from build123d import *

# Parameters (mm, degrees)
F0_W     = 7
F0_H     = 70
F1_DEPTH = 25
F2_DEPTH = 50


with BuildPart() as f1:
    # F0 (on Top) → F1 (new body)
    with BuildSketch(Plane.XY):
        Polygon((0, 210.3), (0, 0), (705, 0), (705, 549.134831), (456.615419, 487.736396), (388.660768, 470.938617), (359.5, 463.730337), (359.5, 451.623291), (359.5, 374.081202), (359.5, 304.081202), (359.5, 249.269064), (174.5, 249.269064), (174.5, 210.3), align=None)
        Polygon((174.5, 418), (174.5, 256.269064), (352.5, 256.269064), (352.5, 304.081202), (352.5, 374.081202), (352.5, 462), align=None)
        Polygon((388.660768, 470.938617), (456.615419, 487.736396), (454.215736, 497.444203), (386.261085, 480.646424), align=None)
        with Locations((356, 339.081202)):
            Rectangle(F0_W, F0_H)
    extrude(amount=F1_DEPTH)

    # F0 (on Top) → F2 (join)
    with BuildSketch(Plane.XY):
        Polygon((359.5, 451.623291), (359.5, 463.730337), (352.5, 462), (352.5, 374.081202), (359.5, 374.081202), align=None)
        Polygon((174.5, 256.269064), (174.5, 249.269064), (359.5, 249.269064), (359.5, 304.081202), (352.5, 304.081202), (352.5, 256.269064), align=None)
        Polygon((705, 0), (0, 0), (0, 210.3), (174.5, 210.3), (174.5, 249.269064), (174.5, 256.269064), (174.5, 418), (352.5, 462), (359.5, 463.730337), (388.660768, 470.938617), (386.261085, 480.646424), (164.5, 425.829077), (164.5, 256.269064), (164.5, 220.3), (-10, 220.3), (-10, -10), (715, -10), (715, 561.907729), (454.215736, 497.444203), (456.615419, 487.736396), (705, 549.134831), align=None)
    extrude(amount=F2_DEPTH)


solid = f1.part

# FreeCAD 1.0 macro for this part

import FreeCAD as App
import Part
import Sketcher
from FreeCAD import Vector
Q = App.Units.Quantity


def add_polygon(sketch, points):
    """Adds a closed chain of lines whose ends are joined by coincident constraints."""
    first, n = sketch.GeometryCount, len(points)
    for a, b in zip(points, points[1:] + points[:1]):
        sketch.addGeometry(Part.LineSegment(App.Vector(*a, 0), App.Vector(*b, 0)), False)
    for i in range(n):
        sketch.addConstraint(Sketcher.Constraint("Coincident", first + i, 2, first + (i + 1) % n, 1))

doc = App.newDocument("Part")
params = doc.addObject("Spreadsheet::Sheet", "Params")
for row, (alias, value) in enumerate([
    ("sketch1_width", "705 mm"),
    ("sketch1_width2", "7 mm"),
    ("sketch1_width3", "178 mm"),
    ("sketch1_length", "10 mm"),
    ("sketch1_length2", "70 mm"),
    ("pad1_length", "25 mm"),
    ("sketch2_width", "7 mm"),
    ("sketch2_width2", "725 mm"),
    ("sketch2_width3", "705 mm"),
    ("sketch2_width4", "185 mm"),
    ("sketch2_length", "10 mm"),
    ("pad2_length", "50 mm"),
], start=1):
    params.set(f"A{row}", alias)
    params.set(f"B{row}", "=" + value)
    params.setAlias(f"B{row}", alias)

body = doc.addObject("PartDesign::Body", "Body")

sketch1 = body.newObject("Sketcher::SketchObject", "Sketch")
sketch1.AttachmentSupport = (doc.getObject("XY_Plane"), [""])
sketch1.MapMode = "FlatFace"
add_polygon(sketch1, [(0, 210), (0, 0), (705, 0), (705, 549), (457, 488), (454, 497), (386, 481), (389, 471), (360, 464), (360, 374), (352, 374), (352, 462), (174, 418), (174, 256), (352, 256), (352, 304), (360, 304), (360, 249), (174, 249), (174, 210)])
sketch1.addConstraint(Sketcher.Constraint("Vertical", 0))
sketch1.addConstraint(Sketcher.Constraint("Horizontal", 1))
sketch1.addConstraint(Sketcher.Constraint("Vertical", 2))
sketch1.addConstraint(Sketcher.Constraint("Vertical", 8))
sketch1.addConstraint(Sketcher.Constraint("Horizontal", 9))
sketch1.addConstraint(Sketcher.Constraint("Vertical", 10))
sketch1.addConstraint(Sketcher.Constraint("Vertical", 12))
sketch1.addConstraint(Sketcher.Constraint("Horizontal", 13))
sketch1.addConstraint(Sketcher.Constraint("Vertical", 14))
sketch1.addConstraint(Sketcher.Constraint("Horizontal", 15))
sketch1.addConstraint(Sketcher.Constraint("Vertical", 16))
sketch1.addConstraint(Sketcher.Constraint("Horizontal", 17))
sketch1.addConstraint(Sketcher.Constraint("Vertical", 18))
sketch1.addConstraint(Sketcher.Constraint("Horizontal", 19))
sketch1.addConstraint(Sketcher.Constraint("Coincident", 0, 2, -1, 1))
sketch1.addConstraint(Sketcher.Constraint("Perpendicular", 3, 4))
sketch1.addConstraint(Sketcher.Constraint("Perpendicular", 4, 5))
sketch1.addConstraint(Sketcher.Constraint("Perpendicular", 5, 6))
sketch1.addConstraint(Sketcher.Constraint("Perpendicular", 6, 7))
sketch1.addConstraint(Sketcher.Constraint("Parallel", 7, 11))
sketch1.addConstraint(Sketcher.Constraint("Vertical", 10, 2, 13, 2))
sketch1.addConstraint(Sketcher.Constraint("Vertical", 8, 2, 15, 2))
sketch1.addConstraint(Sketcher.Constraint("Vertical", 12, 2, 17, 2))
sketch1.addConstraint(Sketcher.Constraint("Equal", 4, 6))
sketch1.addConstraint(Sketcher.Constraint("DistanceX", 1, 1, 1, 2, Q("705 mm")))
sketch1.addConstraint(Sketcher.Constraint("DistanceX", 9, 2, 9, 1, Q("7 mm")))
sketch1.addConstraint(Sketcher.Constraint("DistanceX", 13, 1, 13, 2, Q("178 mm")))
sketch1.addConstraint(Sketcher.Constraint("Distance", 4, Q("10 mm")))
sketch1.addConstraint(Sketcher.Constraint("Distance", 5, Q("70 mm")))
sketch1.addConstraint(Sketcher.Constraint("DistanceX", 19, 2, 19, 1, Q("174.5 mm")))
sketch1.addConstraint(Sketcher.Constraint("DistanceY", 0, 2, 0, 1, Q("210.3 mm")))
sketch1.addConstraint(Sketcher.Constraint("DistanceY", -1, 1, 10, 2, Q("462 mm")))
sketch1.addConstraint(Sketcher.Constraint("DistanceY", -1, 1, 11, 2, Q("418 mm")))
sketch1.addConstraint(Sketcher.Constraint("DistanceY", 14, 2, 9, 2, Q("70 mm")))
sketch1.addConstraint(Sketcher.Constraint("DistanceY", 16, 2, 13, 2, Q("7 mm")))
sketch1.addConstraint(Sketcher.Constraint("DistanceY", 8, 2, 4, 2, Q("123.363001 mm")))
sketch1.addConstraint(Sketcher.Constraint("DistanceY", 2, 1, 2, 2, Q("549.134831 mm")))
sketch1.addConstraint(Sketcher.Constraint("DistanceY", 14, 1, 14, 2, Q("47.812138 mm")))
sketch1.addConstraint(Sketcher.Constraint("DistanceY", -1, 1, 8, 2, Q("374.081202 mm")))
sketch1.setExpression("Constraints[44]", "Params.sketch1_width")
sketch1.setExpression("Constraints[45]", "Params.sketch1_width2")
sketch1.setExpression("Constraints[46]", "Params.sketch1_width3")
sketch1.setExpression("Constraints[47]", "Params.sketch1_length")
sketch1.setExpression("Constraints[48]", "Params.sketch1_length2")
pad1 = body.newObject("PartDesign::Pad", "Pad")
pad1.Profile = sketch1
pad1.setExpression("Length", "Params.pad1_length")

sketch2 = body.newObject("Sketcher::SketchObject", "Sketch001")
sketch2.AttachmentSupport = (doc.getObject("XY_Plane"), [""])
sketch2.MapMode = "FlatFace"
add_polygon(sketch2, [(352, 462), (352, 374), (360, 374), (360, 464), (389, 471), (386, 481), (164, 426), (164, 220), (-10, 220), (-10, -10), (715, -10), (715, 562), (454, 497), (457, 488), (705, 549), (705, 0), (0, 0), (0, 210), (174, 210), (174, 249), (360, 249), (360, 304), (352, 304), (352, 256), (174, 256), (174, 418)])
sketch2.addConstraint(Sketcher.Constraint("Vertical", 0))
sketch2.addConstraint(Sketcher.Constraint("Horizontal", 1))
sketch2.addConstraint(Sketcher.Constraint("Vertical", 2))
sketch2.addConstraint(Sketcher.Constraint("Vertical", 6))
sketch2.addConstraint(Sketcher.Constraint("Horizontal", 7))
sketch2.addConstraint(Sketcher.Constraint("Vertical", 8))
sketch2.addConstraint(Sketcher.Constraint("Horizontal", 9))
sketch2.addConstraint(Sketcher.Constraint("Vertical", 10))
sketch2.addConstraint(Sketcher.Constraint("Vertical", 14))
sketch2.addConstraint(Sketcher.Constraint("Horizontal", 15))
sketch2.addConstraint(Sketcher.Constraint("Vertical", 16))
sketch2.addConstraint(Sketcher.Constraint("Horizontal", 17))
sketch2.addConstraint(Sketcher.Constraint("Vertical", 18))
sketch2.addConstraint(Sketcher.Constraint("Horizontal", 19))
sketch2.addConstraint(Sketcher.Constraint("Vertical", 20))
sketch2.addConstraint(Sketcher.Constraint("Horizontal", 21))
sketch2.addConstraint(Sketcher.Constraint("Vertical", 22))
sketch2.addConstraint(Sketcher.Constraint("Horizontal", 23))
sketch2.addConstraint(Sketcher.Constraint("Vertical", 24))
sketch2.addConstraint(Sketcher.Constraint("Coincident", 15, 2, -1, 1))
sketch2.addConstraint(Sketcher.Constraint("Perpendicular", 3, 4))
sketch2.addConstraint(Sketcher.Constraint("Perpendicular", 4, 5))
sketch2.addConstraint(Sketcher.Constraint("Parallel", 5, 11))
sketch2.addConstraint(Sketcher.Constraint("Perpendicular", 11, 12))
sketch2.addConstraint(Sketcher.Constraint("Perpendicular", 12, 13))
sketch2.addConstraint(Sketcher.Constraint("Parallel", 13, 25))
sketch2.addConstraint(Sketcher.Constraint("Vertical", 2, 2, 19, 2))
sketch2.addConstraint(Sketcher.Constraint("Vertical", 0, 2, 21, 2))
sketch2.addConstraint(Sketcher.Constraint("Vertical", 18, 2, 23, 2))
sketch2.addConstraint(Sketcher.Constraint("Equal", 7, 17))
sketch2.addConstraint(Sketcher.Constraint("Equal", 4, 12))
sketch2.addConstraint(Sketcher.Constraint("DistanceX", 1, 1, 1, 2, Q("7 mm")))
sketch2.addConstraint(Sketcher.Constraint("DistanceX", 9, 1, 9, 2, Q("725 mm")))
sketch2.addConstraint(Sketcher.Constraint("DistanceX", 15, 2, 15, 1, Q("705 mm")))
sketch2.addConstraint(Sketcher.Constraint("DistanceX", 19, 1, 19, 2, Q("185 mm")))
sketch2.addConstraint(Sketcher.Constraint("Distance", 4, Q("10 mm")))
sketch2.addConstraint(Sketcher.Constraint("DistanceX", 7, 2, 7, 1, Q("174.5 mm")))
sketch2.addConstraint(Sketcher.Constraint("DistanceY", 8, 2, 8, 1, Q("230.3 mm")))
sketch2.addConstraint(Sketcher.Constraint("DistanceY", 16, 1, 16, 2, Q("210.3 mm")))
sketch2.addConstraint(Sketcher.Constraint("DistanceX", 7, 2, -1, 1, Q("10 mm")))
sketch2.addConstraint(Sketcher.Constraint("DistanceY", 8, 2, -1, 1, Q("10 mm")))
sketch2.addConstraint(Sketcher.Constraint("DistanceY", -1, 1, 24, 2, Q("418 mm")))
sketch2.addConstraint(Sketcher.Constraint("DistanceY", -1, 1, 25, 2, Q("462 mm")))
sketch2.addConstraint(Sketcher.Constraint("DistanceY", 20, 2, 1, 2, Q("70 mm")))
sketch2.addConstraint(Sketcher.Constraint("DistanceY", 19, 2, 22, 2, Q("7 mm")))
sketch2.addConstraint(Sketcher.Constraint("DistanceY", 1, 2, 11, 2, Q("123.363001 mm")))
sketch2.addConstraint(Sketcher.Constraint("DistanceY", 10, 1, 10, 2, Q("571.907729 mm")))
sketch2.addConstraint(Sketcher.Constraint("DistanceY", 20, 1, 20, 2, Q("54.812138 mm")))
sketch2.addConstraint(Sketcher.Constraint("DistanceY", -1, 1, 0, 2, Q("374.081202 mm")))
sketch2.addConstraint(Sketcher.Constraint("Distance", 3, Q("30.03847 mm")))
sketch2.addConstraint(Sketcher.Constraint("DistanceY", 2, 1, 2, 2, Q("89.649135 mm")))
sketch2.setExpression("Constraints[57]", "Params.sketch2_width")
sketch2.setExpression("Constraints[58]", "Params.sketch2_width2")
sketch2.setExpression("Constraints[59]", "Params.sketch2_width3")
sketch2.setExpression("Constraints[60]", "Params.sketch2_width4")
sketch2.setExpression("Constraints[61]", "Params.sketch2_length")
pad2 = body.newObject("PartDesign::Pad", "Pad001")
pad2.Profile = sketch2
pad2.setExpression("Length", "Params.pad2_length")

doc.recompute()
